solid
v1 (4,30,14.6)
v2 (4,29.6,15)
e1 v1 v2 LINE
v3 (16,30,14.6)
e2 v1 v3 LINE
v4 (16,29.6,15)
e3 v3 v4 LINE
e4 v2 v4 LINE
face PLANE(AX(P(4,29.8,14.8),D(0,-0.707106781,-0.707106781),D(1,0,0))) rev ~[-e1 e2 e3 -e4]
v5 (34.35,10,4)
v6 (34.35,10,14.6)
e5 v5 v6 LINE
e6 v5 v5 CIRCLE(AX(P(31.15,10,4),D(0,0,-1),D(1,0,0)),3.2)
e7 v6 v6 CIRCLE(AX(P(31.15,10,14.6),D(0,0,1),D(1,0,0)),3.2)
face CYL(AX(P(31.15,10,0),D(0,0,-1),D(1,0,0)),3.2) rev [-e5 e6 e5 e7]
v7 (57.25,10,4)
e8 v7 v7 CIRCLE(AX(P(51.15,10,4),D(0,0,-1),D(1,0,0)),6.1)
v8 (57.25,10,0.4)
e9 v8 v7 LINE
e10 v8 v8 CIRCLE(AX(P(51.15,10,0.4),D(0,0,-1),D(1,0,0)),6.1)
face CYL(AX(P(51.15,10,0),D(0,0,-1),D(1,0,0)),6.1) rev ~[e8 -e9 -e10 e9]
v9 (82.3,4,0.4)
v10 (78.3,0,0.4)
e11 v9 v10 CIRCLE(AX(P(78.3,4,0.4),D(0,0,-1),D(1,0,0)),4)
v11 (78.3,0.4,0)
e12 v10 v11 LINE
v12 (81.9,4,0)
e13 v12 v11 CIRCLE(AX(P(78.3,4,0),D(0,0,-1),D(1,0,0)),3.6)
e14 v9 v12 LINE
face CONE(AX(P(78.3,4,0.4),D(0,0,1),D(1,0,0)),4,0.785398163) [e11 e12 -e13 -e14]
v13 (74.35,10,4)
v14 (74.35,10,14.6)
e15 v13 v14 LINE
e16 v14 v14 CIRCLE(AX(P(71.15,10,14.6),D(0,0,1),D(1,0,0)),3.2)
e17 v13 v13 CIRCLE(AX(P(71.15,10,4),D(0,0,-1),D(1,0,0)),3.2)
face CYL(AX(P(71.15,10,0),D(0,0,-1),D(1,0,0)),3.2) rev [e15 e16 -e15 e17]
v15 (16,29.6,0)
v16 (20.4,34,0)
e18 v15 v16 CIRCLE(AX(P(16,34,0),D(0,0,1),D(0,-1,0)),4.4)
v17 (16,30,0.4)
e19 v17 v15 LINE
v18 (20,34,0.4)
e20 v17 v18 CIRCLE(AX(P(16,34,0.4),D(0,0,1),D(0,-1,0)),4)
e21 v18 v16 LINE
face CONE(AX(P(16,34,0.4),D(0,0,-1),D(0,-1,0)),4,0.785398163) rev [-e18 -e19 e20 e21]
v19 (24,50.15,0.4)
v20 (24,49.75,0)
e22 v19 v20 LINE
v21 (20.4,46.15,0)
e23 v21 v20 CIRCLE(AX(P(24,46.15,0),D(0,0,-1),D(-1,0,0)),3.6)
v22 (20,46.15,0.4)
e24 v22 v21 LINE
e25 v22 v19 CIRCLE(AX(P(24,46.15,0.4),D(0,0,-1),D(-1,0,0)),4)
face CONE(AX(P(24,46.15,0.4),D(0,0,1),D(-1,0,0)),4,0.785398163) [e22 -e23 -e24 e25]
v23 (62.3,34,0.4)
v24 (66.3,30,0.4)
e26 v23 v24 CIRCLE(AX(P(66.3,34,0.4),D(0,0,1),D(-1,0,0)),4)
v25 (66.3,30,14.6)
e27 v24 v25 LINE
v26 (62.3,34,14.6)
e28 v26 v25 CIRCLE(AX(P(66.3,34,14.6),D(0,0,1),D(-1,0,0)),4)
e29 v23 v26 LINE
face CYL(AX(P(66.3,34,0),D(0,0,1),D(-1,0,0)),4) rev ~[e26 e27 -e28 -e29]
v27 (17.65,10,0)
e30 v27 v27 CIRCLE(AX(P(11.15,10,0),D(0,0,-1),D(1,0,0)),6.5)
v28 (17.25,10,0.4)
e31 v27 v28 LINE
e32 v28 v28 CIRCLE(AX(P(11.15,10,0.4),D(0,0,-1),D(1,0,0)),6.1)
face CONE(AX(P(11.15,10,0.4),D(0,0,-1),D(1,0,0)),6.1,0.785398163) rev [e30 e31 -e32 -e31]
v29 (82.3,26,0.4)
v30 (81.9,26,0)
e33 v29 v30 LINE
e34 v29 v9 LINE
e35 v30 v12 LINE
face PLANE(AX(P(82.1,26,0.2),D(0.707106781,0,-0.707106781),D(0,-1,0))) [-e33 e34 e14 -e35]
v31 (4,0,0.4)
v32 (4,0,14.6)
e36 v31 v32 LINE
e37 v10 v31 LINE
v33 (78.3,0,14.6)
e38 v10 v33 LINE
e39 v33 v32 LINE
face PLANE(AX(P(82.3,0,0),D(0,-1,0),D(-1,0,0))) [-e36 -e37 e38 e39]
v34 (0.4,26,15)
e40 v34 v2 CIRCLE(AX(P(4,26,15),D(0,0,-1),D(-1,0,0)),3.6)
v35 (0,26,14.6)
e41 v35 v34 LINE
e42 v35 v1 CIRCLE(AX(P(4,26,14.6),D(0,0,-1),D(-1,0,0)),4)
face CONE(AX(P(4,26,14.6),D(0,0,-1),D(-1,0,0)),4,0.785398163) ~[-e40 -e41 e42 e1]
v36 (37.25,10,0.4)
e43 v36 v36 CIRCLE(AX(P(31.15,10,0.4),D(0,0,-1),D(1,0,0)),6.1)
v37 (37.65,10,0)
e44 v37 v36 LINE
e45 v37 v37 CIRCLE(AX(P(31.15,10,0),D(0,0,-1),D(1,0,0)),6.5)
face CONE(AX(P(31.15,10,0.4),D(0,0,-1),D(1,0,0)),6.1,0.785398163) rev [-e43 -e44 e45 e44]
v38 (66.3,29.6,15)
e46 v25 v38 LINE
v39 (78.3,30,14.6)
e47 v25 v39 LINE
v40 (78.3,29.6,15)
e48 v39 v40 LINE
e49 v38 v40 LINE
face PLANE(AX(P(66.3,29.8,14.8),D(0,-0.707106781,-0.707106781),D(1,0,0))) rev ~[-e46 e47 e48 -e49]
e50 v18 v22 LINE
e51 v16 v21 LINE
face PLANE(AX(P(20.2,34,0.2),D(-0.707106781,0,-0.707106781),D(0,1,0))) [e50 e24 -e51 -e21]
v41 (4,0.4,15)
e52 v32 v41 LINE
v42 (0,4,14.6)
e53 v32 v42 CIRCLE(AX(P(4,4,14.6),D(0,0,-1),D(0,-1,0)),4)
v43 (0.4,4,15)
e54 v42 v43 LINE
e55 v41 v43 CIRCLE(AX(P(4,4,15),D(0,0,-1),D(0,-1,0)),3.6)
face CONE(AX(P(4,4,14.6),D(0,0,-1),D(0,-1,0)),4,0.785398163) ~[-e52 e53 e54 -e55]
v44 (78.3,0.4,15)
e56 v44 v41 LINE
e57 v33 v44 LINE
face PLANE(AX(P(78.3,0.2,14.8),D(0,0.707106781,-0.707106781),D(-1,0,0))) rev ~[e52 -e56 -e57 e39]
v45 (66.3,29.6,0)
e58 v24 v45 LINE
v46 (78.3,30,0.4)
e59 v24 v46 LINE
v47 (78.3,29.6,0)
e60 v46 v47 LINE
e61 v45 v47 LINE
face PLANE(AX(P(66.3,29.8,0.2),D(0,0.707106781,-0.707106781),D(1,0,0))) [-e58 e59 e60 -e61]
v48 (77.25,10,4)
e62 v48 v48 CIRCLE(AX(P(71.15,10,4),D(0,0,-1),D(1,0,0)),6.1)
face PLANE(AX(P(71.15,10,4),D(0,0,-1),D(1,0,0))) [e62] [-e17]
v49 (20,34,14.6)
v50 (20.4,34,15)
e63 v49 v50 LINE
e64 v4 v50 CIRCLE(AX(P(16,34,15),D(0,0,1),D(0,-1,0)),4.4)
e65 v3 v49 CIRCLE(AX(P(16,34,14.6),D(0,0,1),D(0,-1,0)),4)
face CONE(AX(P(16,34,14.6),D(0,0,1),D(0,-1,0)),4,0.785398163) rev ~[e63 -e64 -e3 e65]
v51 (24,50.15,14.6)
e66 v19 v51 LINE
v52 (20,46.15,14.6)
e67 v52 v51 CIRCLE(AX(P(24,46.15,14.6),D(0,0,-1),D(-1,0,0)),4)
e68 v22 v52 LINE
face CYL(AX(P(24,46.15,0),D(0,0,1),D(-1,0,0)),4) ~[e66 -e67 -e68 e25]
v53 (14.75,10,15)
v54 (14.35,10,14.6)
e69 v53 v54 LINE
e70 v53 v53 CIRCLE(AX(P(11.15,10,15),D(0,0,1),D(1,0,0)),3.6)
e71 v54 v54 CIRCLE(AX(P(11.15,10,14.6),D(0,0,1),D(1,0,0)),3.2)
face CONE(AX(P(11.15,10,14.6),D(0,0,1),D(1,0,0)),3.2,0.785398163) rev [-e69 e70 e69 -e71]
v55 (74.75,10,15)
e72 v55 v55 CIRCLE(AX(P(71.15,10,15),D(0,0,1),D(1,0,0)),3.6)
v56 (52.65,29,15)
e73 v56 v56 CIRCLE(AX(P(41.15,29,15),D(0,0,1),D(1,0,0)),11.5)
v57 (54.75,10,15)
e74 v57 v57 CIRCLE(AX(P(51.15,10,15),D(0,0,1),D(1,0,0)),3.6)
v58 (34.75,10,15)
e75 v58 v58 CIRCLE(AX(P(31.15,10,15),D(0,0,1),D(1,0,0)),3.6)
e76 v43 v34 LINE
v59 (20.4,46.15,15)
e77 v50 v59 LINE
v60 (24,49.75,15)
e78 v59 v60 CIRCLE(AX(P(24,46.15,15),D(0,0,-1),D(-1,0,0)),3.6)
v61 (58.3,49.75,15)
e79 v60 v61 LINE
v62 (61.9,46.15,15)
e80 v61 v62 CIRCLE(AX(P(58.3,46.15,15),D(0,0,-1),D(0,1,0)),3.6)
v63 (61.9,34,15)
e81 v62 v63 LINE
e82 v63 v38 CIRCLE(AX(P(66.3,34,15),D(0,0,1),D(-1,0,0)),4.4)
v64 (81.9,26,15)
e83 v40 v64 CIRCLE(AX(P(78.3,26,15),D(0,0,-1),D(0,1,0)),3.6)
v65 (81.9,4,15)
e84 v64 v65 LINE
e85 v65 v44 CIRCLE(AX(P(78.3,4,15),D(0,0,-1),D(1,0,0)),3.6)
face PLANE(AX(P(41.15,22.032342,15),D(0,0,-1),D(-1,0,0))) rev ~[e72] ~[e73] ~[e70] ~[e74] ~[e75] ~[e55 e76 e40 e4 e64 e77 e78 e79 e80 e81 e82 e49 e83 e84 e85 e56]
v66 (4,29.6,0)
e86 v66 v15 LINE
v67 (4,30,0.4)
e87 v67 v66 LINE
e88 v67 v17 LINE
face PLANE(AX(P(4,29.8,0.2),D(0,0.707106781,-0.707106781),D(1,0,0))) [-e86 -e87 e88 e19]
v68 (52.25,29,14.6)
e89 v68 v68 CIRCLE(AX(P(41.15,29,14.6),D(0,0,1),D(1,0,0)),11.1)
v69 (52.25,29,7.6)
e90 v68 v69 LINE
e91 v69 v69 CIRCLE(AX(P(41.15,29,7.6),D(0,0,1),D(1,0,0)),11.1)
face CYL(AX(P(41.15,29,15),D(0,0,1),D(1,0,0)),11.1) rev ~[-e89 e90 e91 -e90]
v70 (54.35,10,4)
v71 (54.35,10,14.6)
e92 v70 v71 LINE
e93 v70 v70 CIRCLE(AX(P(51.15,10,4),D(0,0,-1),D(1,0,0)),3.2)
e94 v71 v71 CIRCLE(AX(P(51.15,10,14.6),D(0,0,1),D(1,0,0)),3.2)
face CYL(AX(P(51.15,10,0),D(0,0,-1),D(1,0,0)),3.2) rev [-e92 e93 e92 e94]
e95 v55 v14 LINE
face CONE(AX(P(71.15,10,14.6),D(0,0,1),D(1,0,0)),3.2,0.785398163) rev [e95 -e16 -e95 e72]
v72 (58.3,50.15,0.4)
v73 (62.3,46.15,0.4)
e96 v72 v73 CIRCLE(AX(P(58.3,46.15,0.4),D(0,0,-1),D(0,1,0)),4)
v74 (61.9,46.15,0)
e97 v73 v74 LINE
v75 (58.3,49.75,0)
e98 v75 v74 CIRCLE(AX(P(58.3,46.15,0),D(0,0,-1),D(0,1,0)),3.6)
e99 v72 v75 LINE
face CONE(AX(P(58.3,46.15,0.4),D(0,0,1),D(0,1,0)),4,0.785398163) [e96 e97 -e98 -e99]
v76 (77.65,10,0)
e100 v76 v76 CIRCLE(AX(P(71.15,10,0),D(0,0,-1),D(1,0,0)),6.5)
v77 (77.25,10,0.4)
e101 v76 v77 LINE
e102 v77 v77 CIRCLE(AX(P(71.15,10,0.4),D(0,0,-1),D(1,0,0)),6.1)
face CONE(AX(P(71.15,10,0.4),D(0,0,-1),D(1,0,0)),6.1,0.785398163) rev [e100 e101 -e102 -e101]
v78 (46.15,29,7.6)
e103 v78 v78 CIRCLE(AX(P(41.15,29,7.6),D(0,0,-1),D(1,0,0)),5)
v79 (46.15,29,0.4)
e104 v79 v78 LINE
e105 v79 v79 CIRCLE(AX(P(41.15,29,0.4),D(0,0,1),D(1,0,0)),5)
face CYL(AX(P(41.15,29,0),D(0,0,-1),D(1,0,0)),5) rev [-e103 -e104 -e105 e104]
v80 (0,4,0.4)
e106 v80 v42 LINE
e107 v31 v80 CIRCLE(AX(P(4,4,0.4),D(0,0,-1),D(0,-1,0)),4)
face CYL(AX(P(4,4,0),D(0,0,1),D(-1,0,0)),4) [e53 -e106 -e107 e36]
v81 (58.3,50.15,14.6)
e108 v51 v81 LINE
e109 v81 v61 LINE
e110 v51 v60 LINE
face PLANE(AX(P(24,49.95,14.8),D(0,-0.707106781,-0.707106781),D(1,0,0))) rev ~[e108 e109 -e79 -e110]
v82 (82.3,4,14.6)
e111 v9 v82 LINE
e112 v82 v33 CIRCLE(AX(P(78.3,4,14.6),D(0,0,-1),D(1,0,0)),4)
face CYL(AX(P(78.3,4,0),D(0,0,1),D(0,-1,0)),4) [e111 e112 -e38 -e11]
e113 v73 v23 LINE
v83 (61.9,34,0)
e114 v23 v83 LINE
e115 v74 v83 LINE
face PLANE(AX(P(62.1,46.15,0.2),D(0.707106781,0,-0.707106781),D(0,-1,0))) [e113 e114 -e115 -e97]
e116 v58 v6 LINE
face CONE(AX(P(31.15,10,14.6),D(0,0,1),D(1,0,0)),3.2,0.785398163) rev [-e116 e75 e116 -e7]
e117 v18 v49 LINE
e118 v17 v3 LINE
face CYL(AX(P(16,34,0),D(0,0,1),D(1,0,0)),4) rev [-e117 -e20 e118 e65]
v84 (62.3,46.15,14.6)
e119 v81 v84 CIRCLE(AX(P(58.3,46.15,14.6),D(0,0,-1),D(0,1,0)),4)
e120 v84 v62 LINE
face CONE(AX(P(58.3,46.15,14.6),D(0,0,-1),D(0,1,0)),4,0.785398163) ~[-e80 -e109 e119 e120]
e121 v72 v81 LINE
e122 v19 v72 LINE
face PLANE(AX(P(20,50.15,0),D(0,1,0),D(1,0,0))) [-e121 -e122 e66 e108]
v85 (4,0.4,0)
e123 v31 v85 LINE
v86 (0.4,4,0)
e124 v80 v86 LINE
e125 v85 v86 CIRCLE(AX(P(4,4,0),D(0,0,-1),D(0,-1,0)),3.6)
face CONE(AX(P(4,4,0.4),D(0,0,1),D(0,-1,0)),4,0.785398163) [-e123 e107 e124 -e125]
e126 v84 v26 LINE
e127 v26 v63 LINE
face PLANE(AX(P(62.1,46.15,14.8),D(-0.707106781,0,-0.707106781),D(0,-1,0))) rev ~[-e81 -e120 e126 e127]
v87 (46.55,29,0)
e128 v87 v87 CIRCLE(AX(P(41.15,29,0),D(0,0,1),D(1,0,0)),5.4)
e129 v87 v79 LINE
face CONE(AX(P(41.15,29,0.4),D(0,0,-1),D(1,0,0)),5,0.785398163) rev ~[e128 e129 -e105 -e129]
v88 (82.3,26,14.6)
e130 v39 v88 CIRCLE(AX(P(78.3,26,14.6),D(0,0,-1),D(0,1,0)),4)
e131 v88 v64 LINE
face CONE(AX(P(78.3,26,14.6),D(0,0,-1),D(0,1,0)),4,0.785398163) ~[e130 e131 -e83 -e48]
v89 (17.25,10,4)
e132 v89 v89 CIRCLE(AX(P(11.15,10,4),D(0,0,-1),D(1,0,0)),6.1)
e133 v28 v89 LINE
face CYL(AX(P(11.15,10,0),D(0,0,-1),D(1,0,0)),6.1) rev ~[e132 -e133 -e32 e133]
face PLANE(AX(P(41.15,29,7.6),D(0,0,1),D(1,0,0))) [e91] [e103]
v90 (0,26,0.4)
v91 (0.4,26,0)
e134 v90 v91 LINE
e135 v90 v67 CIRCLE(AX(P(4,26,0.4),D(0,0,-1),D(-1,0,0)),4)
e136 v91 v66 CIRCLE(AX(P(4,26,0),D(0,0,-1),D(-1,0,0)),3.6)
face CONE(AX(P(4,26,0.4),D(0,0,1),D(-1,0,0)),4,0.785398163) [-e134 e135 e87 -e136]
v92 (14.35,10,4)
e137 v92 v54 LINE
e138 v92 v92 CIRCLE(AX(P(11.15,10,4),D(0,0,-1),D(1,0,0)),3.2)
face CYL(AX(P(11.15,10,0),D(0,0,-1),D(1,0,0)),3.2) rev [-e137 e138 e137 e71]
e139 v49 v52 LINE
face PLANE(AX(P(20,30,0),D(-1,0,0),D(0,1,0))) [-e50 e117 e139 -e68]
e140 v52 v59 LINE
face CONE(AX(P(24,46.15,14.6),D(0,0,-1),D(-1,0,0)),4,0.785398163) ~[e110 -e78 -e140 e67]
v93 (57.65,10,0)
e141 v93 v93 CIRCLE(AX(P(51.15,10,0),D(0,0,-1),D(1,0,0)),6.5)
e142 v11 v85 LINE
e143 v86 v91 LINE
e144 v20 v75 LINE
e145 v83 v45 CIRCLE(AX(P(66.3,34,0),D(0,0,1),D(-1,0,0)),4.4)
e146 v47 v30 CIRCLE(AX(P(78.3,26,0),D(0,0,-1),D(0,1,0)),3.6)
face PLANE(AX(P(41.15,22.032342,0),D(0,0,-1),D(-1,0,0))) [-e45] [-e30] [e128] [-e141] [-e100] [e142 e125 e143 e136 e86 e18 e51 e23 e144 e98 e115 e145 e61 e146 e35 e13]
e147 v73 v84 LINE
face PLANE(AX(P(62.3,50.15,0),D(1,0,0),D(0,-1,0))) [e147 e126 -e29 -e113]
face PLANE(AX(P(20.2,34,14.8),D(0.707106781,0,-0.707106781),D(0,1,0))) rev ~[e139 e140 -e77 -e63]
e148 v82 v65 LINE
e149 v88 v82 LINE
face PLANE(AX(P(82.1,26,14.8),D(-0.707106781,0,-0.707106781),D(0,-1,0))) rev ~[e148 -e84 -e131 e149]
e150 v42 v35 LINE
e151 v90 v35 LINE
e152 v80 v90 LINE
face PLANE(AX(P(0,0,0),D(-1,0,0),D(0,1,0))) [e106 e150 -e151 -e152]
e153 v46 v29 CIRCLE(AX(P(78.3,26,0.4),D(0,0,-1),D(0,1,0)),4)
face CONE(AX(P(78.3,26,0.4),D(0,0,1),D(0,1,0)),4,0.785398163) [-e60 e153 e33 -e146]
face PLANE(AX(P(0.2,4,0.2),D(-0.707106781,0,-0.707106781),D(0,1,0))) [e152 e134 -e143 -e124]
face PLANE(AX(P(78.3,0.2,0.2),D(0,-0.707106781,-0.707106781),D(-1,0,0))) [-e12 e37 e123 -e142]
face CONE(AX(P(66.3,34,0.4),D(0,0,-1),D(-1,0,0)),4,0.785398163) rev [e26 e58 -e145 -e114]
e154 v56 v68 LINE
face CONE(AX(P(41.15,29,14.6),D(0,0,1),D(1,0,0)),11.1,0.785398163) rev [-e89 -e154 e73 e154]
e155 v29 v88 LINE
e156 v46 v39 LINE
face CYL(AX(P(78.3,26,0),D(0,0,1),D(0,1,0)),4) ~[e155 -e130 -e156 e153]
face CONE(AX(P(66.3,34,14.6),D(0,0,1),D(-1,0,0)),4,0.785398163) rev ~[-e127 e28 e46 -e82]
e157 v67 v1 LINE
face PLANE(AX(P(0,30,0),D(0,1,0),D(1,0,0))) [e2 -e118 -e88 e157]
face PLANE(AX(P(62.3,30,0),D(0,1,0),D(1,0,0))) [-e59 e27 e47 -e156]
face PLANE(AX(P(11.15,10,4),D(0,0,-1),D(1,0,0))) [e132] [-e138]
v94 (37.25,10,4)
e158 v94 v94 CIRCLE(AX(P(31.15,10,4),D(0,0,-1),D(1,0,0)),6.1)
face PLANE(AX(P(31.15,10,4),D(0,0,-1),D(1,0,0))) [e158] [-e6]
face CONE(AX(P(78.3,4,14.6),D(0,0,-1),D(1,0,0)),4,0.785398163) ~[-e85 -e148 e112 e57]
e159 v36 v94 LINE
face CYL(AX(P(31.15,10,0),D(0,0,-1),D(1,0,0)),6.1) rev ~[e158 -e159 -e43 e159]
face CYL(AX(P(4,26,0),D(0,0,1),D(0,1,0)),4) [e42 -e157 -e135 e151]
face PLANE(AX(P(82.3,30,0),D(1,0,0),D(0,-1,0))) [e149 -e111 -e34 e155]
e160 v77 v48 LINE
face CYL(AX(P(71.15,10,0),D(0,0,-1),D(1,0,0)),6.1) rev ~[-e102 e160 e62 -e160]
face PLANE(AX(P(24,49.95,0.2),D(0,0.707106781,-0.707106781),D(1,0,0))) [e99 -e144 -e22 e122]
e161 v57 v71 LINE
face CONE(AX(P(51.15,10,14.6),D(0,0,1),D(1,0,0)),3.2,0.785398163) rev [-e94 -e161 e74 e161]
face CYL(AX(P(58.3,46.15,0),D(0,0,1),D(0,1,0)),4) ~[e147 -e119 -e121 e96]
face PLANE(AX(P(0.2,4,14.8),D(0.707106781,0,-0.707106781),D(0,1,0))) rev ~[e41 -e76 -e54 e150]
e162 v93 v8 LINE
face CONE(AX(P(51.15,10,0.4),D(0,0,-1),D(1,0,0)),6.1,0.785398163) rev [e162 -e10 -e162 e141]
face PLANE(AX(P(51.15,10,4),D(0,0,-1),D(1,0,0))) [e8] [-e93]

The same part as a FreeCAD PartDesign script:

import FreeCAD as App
import Part
import Sketcher
Q = App.Units.Quantity


def edges_at(feature, points):
    """Names of the edges that pass closest to the given points."""
    edges = feature.Shape.Edges
    near = lambda p: min(range(len(edges)), key=lambda i: edges[i].distToShape(Part.Vertex(*p))[0])
    return sorted({f"Edge{near(p) + 1}" for p in points})


def add_polygon(sketch, points):
    """Adds a closed chain of lines whose ends are joined by coincident constraints."""
    first, n = sketch.GeometryCount, len(points)
    for a, b in zip(points, points[1:] + points[:1]):
        sketch.addGeometry(Part.LineSegment(App.Vector(*a, 0), App.Vector(*b, 0)), False)
    for i in range(n):
        sketch.addConstraint(Sketcher.Constraint("Coincident", first + i, 2, first + (i + 1) % n, 1))

doc = App.newDocument("Part")
body = doc.addObject("PartDesign::Body", "Body")

sketch1 = body.newObject("Sketcher::SketchObject", "Sketch")
sketch1.AttachmentSupport = (doc.getObject("XY_Plane"), [""])
sketch1.MapMode = "FlatFace"
add_polygon(sketch1, [(20, 50.1), (20, 30), (0, 30), (0, 0), (82.3, 0), (82.3, 30), (62.3, 30), (62.3, 50.1)])
sketch1.addGeometry(Part.Circle(App.Vector(71.2, 10, 0), App.Vector(0, 0, 1), 3.2), False)
sketch1.addGeometry(Part.Circle(App.Vector(51.1, 10, 0), App.Vector(0, 0, 1), 3.2), False)
sketch1.addGeometry(Part.Circle(App.Vector(31.1, 10, 0), App.Vector(0, 0, 1), 3.2), False)
sketch1.addGeometry(Part.Circle(App.Vector(11.2, 10, 0), App.Vector(0, 0, 1), 3.2), False)
sketch1.addGeometry(Part.Circle(App.Vector(41.1, 29, 0), App.Vector(0, 0, 1), 5), False)
sketch1.addConstraint(Sketcher.Constraint("Vertical", 0))
sketch1.addConstraint(Sketcher.Constraint("Horizontal", 1))
sketch1.addConstraint(Sketcher.Constraint("Vertical", 2))
sketch1.addConstraint(Sketcher.Constraint("Horizontal", 3))
sketch1.addConstraint(Sketcher.Constraint("Vertical", 4))
sketch1.addConstraint(Sketcher.Constraint("Horizontal", 5))
sketch1.addConstraint(Sketcher.Constraint("Vertical", 6))
sketch1.addConstraint(Sketcher.Constraint("Horizontal", 7))
sketch1.addConstraint(Sketcher.Constraint("Coincident", 2, 2, -1, 1))
sketch1.addConstraint(Sketcher.Constraint("Equal", 8, 9))
sketch1.addConstraint(Sketcher.Constraint("Equal", 9, 10))
sketch1.addConstraint(Sketcher.Constraint("Equal", 10, 11))
sketch1.addConstraint(Sketcher.Constraint("Horizontal", 8, 3, 9, 3))
sketch1.addConstraint(Sketcher.Constraint("Horizontal", 9, 3, 10, 3))
sketch1.addConstraint(Sketcher.Constraint("Horizontal", 10, 3, 11, 3))
sketch1.addConstraint(Sketcher.Constraint("Horizontal", 1, 2, 4, 2))
sketch1.addConstraint(Sketcher.Constraint("Equal", 1, 5))
sketch1.addConstraint(Sketcher.Constraint("Diameter", 12, Q("10 mm")))
sketch1.addConstraint(Sketcher.Constraint("Diameter", 8, Q("6.4 mm")))
sketch1.addConstraint(Sketcher.Constraint("DistanceX", 1, 2, 1, 1, Q("20 mm")))
sketch1.addConstraint(Sketcher.Constraint("DistanceY", 2, 2, 2, 1, Q("30 mm")))
sketch1.addConstraint(Sketcher.Constraint("DistanceX", 3, 1, 3, 2, Q("82.3 mm")))
sketch1.addConstraint(Sketcher.Constraint("DistanceY", -1, 1, 8, 3, Q("10 mm")))
sketch1.addConstraint(Sketcher.Constraint("DistanceY", -1, 1, 12, 3, Q("29 mm")))
sketch1.addConstraint(Sketcher.Constraint("DistanceX", 9, 3, 8, 3, Q("20 mm")))
sketch1.addConstraint(Sketcher.Constraint("DistanceX", 10, 3, 9, 3, Q("20 mm")))
sketch1.addConstraint(Sketcher.Constraint("DistanceX", 11, 3, 10, 3, Q("20 mm")))
sketch1.addConstraint(Sketcher.Constraint("DistanceX", 12, 3, 9, 3, Q("10 mm")))
sketch1.addConstraint(Sketcher.Constraint("DistanceY", 0, 2, 0, 1, Q("20.15 mm")))
sketch1.addConstraint(Sketcher.Constraint("DistanceX", -1, 1, 8, 3, Q("71.15 mm")))
pad1 = body.newObject("PartDesign::Pad", "Pad")
pad1.Profile = sketch1
pad1.Length = 15

sketch2 = body.newObject("Sketcher::SketchObject", "Sketch001")
sketch2.AttachmentSupport = (doc.getObject("XY_Plane"), [""])
sketch2.MapMode = "FlatFace"
sketch2.addGeometry(Part.Circle(App.Vector(11, 10, 0), App.Vector(0, 0, 1), 6), False)
sketch2.addGeometry(Part.Circle(App.Vector(31, 10, 0), App.Vector(0, 0, 1), 6), False)
sketch2.addGeometry(Part.Circle(App.Vector(51, 10, 0), App.Vector(0, 0, 1), 6), False)
sketch2.addGeometry(Part.Circle(App.Vector(71, 10, 0), App.Vector(0, 0, 1), 6), False)
sketch2.addConstraint(Sketcher.Constraint("Equal", 0, 1))
sketch2.addConstraint(Sketcher.Constraint("Equal", 1, 2))
sketch2.addConstraint(Sketcher.Constraint("Equal", 2, 3))
sketch2.addConstraint(Sketcher.Constraint("Horizontal", 0, 3, 1, 3))
sketch2.addConstraint(Sketcher.Constraint("Horizontal", 1, 3, 2, 3))
sketch2.addConstraint(Sketcher.Constraint("Horizontal", 2, 3, 3, 3))
sketch2.addConstraint(Sketcher.Constraint("Diameter", 0, Q("12.2 mm")))
sketch2.addConstraint(Sketcher.Constraint("DistanceY", -1, 1, 0, 3, Q("10 mm")))
sketch2.addConstraint(Sketcher.Constraint("DistanceX", 0, 3, 1, 3, Q("20 mm")))
sketch2.addConstraint(Sketcher.Constraint("DistanceX", 1, 3, 2, 3, Q("20 mm")))
sketch2.addConstraint(Sketcher.Constraint("DistanceX", 2, 3, 3, 3, Q("20 mm")))
sketch2.addConstraint(Sketcher.Constraint("DistanceX", -1, 1, 0, 3, Q("11.15 mm")))
pocket1 = body.newObject("PartDesign::Pocket", "Pocket")
pocket1.Profile = sketch2
pocket1.Length = 4
pocket1.Reversed = True

sketch3 = body.newObject("Sketcher::SketchObject", "Sketch002")
sketch3.AttachmentSupport = (doc.getObject("XY_Plane"), [""])
sketch3.MapMode = "FlatFace"
sketch3.AttachmentOffset = App.Placement(App.Vector(0, 0, 15), App.Rotation())
sketch3.addGeometry(Part.Circle(App.Vector(41, 29, 0), App.Vector(0, 0, 1), 11), False)
sketch3.addConstraint(Sketcher.Constraint("Diameter", 0, Q("22.2 mm")))
sketch3.addConstraint(Sketcher.Constraint("DistanceY", -1, 1, 0, 3, Q("29 mm")))
sketch3.addConstraint(Sketcher.Constraint("DistanceX", -1, 1, 0, 3, Q("41.15 mm")))
pocket2 = body.newObject("PartDesign::Pocket", "Pocket001")
pocket2.Profile = sketch3
pocket2.Length = 7.4
doc.recompute()

fillet = body.newObject("PartDesign::Fillet", "Fillet")
fillet.Base = (pocket2, edges_at(pocket2, [
    (82.3, 0, 7.5),
    (0, 0, 7.5),
    (0, 30, 7.5),
    (20, 30, 7.5),
    (20, 50.15, 7.5),
    (62.3, 50.15, 7.5),
    (62.3, 30, 7.5),
    (82.3, 30, 7.5),
]))
fillet.Radius = 4
doc.recompute()

chamfer = body.newObject("PartDesign::Chamfer", "Chamfer")
chamfer.Base = (fillet, edges_at(fillet, [
    (20, 40.075, 15),
    (18.828, 31.172, 15),
    (21.172, 48.978, 15),
    (10, 30, 15),
    (41.15, 50.15, 15),
    (1.172, 28.828, 15),
    (61.128, 48.978, 15),
    (0, 15, 15),
    (62.3, 40.075, 15),
    (1.172, 1.172, 15),
    (63.472, 31.172, 15),
    (41.15, 0, 15),
    (72.3, 30, 15),
    (81.128, 1.172, 15),
    (81.128, 28.828, 15),
    (82.3, 15, 15),
    (67.95, 10, 15),
    (47.95, 10, 15),
    (27.95, 10, 15),
    (7.95, 10, 15),
    (30.05, 29, 15),
]))
chamfer.Size = 0.4
doc.recompute()

chamfer2 = body.newObject("PartDesign::Chamfer", "Chamfer001")
chamfer2.Base = (chamfer, edges_at(chamfer, [
    (20, 40.075, 0),
    (18.828, 31.172, 0),
    (21.172, 48.978, 0),
    (10, 30, 0),
    (41.15, 50.15, 0),
    (1.172, 28.828, 0),
    (61.128, 48.978, 0),
    (0, 15, 0),
    (62.3, 40.075, 0),
    (1.172, 1.172, 0),
    (63.472, 31.172, 0),
    (41.15, 0, 0),
    (72.3, 30, 0),
    (81.128, 1.172, 0),
    (81.128, 28.828, 0),
    (82.3, 15, 0),
    (65.05, 10, 0),
    (45.05, 10, 0),
    (25.05, 10, 0),
    (5.05, 10, 0),
    (36.15, 29, 0),
]))
chamfer2.Size = 0.4

doc.recompute()
